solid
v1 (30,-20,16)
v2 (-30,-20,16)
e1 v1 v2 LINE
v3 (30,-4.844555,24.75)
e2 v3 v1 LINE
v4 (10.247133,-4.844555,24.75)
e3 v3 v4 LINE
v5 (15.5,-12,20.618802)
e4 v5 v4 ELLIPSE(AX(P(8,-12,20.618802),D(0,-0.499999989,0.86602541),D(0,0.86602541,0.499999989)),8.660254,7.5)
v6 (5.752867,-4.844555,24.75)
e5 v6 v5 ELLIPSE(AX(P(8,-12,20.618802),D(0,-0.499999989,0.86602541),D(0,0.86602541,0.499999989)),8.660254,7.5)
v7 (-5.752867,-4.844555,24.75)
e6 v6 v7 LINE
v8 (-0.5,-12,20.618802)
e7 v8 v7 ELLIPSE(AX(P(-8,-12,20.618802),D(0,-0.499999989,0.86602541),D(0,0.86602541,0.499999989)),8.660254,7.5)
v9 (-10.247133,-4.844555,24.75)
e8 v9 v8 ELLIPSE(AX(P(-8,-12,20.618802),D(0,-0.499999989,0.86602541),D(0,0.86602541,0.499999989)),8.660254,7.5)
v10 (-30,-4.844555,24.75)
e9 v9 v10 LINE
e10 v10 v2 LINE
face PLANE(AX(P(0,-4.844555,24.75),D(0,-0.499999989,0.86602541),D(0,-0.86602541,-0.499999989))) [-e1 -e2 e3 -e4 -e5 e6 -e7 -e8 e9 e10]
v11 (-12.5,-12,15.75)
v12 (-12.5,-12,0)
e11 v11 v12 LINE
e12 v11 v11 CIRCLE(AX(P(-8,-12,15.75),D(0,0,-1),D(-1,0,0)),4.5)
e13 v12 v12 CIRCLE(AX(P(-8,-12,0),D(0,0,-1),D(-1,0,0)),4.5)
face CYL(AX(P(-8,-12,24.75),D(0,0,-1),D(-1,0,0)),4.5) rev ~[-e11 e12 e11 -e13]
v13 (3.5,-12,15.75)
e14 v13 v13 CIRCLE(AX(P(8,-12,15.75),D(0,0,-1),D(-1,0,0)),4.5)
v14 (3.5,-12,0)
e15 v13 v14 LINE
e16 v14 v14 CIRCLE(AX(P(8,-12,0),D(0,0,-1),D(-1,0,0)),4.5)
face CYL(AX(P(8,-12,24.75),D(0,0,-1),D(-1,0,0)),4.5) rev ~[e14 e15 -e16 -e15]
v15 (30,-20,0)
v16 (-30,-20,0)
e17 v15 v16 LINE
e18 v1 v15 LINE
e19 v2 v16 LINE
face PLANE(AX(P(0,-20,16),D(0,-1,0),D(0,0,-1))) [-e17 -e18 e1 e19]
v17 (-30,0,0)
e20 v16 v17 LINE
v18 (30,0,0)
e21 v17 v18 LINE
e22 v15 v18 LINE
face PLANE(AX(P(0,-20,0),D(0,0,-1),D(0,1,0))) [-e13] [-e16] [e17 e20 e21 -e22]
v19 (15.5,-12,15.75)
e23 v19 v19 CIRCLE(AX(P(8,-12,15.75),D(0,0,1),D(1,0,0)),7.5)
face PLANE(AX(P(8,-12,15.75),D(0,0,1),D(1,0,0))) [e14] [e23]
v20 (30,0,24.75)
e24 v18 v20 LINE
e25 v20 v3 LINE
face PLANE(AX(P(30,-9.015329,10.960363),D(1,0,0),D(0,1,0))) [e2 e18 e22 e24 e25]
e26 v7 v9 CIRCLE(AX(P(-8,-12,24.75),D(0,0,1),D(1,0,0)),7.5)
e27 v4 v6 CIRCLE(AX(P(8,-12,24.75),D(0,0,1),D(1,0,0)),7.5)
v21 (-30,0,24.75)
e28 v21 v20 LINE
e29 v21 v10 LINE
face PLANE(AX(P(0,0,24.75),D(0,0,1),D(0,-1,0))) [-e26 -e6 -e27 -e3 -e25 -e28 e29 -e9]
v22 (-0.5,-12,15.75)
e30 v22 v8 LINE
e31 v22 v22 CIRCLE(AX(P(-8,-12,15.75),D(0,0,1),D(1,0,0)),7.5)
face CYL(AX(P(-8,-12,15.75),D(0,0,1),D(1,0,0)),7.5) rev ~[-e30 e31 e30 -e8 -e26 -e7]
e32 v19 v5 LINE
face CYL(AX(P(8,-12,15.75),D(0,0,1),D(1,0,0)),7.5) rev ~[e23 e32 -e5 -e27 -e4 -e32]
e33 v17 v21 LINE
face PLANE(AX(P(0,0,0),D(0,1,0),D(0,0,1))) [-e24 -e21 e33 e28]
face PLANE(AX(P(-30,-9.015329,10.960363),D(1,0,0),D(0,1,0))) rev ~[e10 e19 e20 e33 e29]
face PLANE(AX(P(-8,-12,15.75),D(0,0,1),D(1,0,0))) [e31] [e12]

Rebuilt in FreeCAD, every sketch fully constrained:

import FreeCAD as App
import Part
import Sketcher
Q = App.Units.Quantity

doc = App.newDocument("Part")
body = doc.addObject("PartDesign::Body", "Body")

# Sketch on YZ plane
sketch1 = body.newObject("Sketcher::SketchObject", "Sketch")
sketch1.AttachmentSupport = (doc.getObject("YZ_Plane"), [""])
sketch1.MapMode = "FlatFace"
sketch1.addGeometry([
    Part.LineSegment(App.Vector(-20, 0, 0), App.Vector(0, 0, 0)),  # 0
    Part.LineSegment(App.Vector(0, 0, 0), App.Vector(0, 24.75, 0)),  # 1
    Part.LineSegment(App.Vector(0, 24.75, 0), App.Vector(-4.844555, 24.75, 0)),  # 2
    Part.LineSegment(App.Vector(-4.844555, 24.75, 0), App.Vector(-20, 16, 0)),  # 3
    Part.LineSegment(App.Vector(-20, 16, 0), App.Vector(-20, 0, 0)),  # 4
], False)
sketch1.addConstraint([
    Sketcher.Constraint("Coincident", 0, 2, 1, 1),
    Sketcher.Constraint("Coincident", 1, 2, 2, 1),
    Sketcher.Constraint("Coincident", 2, 2, 3, 1),
    Sketcher.Constraint("Coincident", 3, 2, 4, 1),
    Sketcher.Constraint("Coincident", 4, 2, 0, 1),
    Sketcher.Constraint("Horizontal", 0),
    Sketcher.Constraint("Vertical", 1),
    Sketcher.Constraint("Horizontal", 2),
    Sketcher.Constraint("Vertical", 4),
    Sketcher.Constraint("Coincident", 0, 2, -1, 1),
    Sketcher.Constraint("DistanceX", 0, 1, 0, 2, Q("20 mm")),
    Sketcher.Constraint("DistanceY", 4, 2, 4, 1, Q("16 mm")),
    Sketcher.Constraint("Angle", 3, Q("-150.000001 deg")),
    Sketcher.Constraint("Distance", 3, Q("17.5 mm")),
])
pad1 = body.newObject("PartDesign::Pad", "Pad")
pad1.Profile = sketch1
pad1.Length = 60
pad1.Midplane = True

# Sketch on XY plane
sketch2 = body.newObject("Sketcher::SketchObject", "Sketch001")
sketch2.AttachmentSupport = (doc.getObject("XY_Plane"), [""])
sketch2.MapMode = "FlatFace"
sketch2.AttachmentOffset = App.Placement(App.Vector(0, 0, 24.75), App.Rotation())
sketch2.addGeometry([
    Part.Circle(App.Vector(-8, -12, 0), App.Vector(0, 0, 1), 4.5),
    Part.Circle(App.Vector(8, -12, 0), App.Vector(0, 0, 1), 4.5),
], False)
sketch2.addConstraint([
    Sketcher.Constraint("Equal", 0, 1),
    Sketcher.Constraint("Symmetric", 0, 3, 1, 3, -2),
    Sketcher.Constraint("Diameter", 0, Q("9 mm")),
    Sketcher.Constraint("DistanceX", 0, 3, -1, 1, Q("8 mm")),
    Sketcher.Constraint("DistanceY", 0, 3, -1, 1, Q("12 mm")),
])
doc.recompute()
hole = body.newObject("PartDesign::Hole", "Hole")
hole.Profile = sketch2
hole.ThreadType = "None"
hole.Diameter = 9
hole.DepthType = "ThroughAll"
hole.HoleCutType = "Counterbore"
hole.HoleCutDiameter = 15
hole.HoleCutDepth = 9

doc.recompute()
